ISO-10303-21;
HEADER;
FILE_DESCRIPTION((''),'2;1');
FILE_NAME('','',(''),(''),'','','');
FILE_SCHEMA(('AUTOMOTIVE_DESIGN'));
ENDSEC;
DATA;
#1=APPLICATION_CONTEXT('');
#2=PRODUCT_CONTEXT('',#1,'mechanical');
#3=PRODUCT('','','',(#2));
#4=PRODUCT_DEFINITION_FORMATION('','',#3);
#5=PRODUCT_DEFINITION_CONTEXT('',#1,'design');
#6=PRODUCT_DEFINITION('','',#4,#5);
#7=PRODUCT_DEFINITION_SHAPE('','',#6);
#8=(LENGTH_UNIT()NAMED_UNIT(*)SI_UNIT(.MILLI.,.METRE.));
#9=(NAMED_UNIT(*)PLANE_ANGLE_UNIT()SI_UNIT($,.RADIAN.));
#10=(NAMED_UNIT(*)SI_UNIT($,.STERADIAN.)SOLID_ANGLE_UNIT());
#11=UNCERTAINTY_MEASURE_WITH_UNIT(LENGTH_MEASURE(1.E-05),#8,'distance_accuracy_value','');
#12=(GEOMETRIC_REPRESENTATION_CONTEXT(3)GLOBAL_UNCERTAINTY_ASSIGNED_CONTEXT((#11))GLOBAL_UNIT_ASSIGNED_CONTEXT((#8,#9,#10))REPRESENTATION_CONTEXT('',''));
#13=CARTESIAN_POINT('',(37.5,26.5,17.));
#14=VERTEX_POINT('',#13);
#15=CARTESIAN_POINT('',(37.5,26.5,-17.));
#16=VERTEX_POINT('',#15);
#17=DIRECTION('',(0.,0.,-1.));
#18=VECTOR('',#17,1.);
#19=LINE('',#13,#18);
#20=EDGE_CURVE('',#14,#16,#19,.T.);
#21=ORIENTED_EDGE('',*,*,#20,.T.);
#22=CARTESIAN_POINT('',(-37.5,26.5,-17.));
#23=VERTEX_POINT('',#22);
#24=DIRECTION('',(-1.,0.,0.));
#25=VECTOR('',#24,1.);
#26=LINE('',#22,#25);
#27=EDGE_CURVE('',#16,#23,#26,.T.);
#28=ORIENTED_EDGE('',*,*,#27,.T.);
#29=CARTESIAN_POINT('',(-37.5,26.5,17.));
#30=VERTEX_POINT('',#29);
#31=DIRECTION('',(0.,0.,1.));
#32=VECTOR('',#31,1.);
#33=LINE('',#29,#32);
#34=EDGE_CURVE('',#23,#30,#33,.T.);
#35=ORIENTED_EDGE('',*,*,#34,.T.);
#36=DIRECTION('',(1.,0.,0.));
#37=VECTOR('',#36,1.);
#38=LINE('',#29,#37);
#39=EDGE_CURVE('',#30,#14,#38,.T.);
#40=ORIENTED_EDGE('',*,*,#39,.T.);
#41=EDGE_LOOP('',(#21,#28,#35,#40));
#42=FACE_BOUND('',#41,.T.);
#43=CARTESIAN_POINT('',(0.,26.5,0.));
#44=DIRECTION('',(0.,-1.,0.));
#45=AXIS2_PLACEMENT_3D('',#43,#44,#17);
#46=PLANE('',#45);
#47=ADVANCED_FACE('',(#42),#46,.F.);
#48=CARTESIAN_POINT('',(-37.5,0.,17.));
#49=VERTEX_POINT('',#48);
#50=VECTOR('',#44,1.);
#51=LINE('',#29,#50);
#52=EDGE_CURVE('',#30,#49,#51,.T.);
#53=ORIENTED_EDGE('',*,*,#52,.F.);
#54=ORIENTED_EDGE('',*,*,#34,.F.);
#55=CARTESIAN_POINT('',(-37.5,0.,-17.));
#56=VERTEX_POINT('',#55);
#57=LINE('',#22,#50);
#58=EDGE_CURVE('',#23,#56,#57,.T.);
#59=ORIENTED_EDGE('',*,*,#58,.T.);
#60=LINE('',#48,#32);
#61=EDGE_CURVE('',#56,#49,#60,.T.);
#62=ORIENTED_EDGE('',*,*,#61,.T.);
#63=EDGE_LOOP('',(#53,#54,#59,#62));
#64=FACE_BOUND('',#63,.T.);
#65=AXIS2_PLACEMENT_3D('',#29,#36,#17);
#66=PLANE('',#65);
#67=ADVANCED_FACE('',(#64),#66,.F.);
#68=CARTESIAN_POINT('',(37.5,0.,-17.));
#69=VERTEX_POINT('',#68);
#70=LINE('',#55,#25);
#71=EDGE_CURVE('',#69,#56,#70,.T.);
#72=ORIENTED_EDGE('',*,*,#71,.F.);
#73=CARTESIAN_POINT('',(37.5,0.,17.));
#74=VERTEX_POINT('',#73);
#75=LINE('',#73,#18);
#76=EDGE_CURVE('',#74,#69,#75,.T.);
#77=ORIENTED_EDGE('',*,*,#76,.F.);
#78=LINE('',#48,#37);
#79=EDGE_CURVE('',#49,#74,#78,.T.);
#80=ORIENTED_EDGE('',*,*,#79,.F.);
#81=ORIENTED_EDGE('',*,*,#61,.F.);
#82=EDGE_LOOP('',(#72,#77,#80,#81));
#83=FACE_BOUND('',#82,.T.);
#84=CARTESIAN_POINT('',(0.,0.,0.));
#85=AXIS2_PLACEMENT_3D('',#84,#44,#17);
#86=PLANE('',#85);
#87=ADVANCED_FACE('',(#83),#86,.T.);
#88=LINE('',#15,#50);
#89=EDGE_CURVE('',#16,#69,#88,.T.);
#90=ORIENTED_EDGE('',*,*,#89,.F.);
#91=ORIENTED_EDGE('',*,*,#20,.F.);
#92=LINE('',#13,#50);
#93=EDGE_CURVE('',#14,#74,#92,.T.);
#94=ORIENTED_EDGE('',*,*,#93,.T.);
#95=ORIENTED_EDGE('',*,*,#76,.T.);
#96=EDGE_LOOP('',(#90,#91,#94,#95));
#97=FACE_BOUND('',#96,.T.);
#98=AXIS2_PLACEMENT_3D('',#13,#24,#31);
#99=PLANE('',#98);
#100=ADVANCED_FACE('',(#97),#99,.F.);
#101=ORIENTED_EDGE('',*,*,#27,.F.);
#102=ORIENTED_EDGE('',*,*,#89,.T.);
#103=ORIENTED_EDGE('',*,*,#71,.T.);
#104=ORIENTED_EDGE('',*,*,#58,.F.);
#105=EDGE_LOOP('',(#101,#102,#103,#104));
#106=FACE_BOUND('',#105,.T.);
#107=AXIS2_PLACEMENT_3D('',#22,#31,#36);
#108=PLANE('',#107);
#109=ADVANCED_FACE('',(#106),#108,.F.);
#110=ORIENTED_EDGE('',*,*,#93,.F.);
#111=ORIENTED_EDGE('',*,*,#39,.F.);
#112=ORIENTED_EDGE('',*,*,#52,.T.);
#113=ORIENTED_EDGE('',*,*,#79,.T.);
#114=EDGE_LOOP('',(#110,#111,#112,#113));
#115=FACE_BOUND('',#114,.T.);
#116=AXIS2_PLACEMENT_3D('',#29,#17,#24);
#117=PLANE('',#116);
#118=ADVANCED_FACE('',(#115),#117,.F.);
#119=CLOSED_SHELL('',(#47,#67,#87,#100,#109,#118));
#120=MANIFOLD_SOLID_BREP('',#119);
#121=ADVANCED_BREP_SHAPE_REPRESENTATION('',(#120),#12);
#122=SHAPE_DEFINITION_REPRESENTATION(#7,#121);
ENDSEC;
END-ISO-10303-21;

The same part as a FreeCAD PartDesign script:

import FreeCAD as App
import Part
import Sketcher


def add_polygon(sketch, points):
    """Adds a closed chain of lines whose ends are joined by coincident constraints."""
    first, n = sketch.GeometryCount, len(points)
    for a, b in zip(points, points[1:] + points[:1]):
        sketch.addGeometry(Part.LineSegment(App.Vector(*a, 0), App.Vector(*b, 0)), False)
    for i in range(n):
        sketch.addConstraint(Sketcher.Constraint("Coincident", first + i, 2, first + (i + 1) % n, 1))

doc = App.newDocument("Part")
params = doc.addObject("Spreadsheet::Sheet", "Params")
for row, (alias, value) in enumerate([
    ("sketch1_width", "75 mm"),
    ("sketch1_height", "34 mm"),
    ("pad1_length", "26.5 mm"),
], start=1):
    params.set(f"A{row}", alias)
    params.set(f"B{row}", "=" + value)
    params.setAlias(f"B{row}", alias)

body = doc.addObject("PartDesign::Body", "Body")

sketch1 = body.newObject("Sketcher::SketchObject", "Sketch")
sketch1.AttachmentSupport = (doc.getObject("XZ_Plane"), [""])
sketch1.MapMode = "FlatFace"
add_polygon(sketch1, [(-37.5, -17), (-37.5, 17), (37.5, 17), (37.5, -17)])
sketch1.addConstraint(Sketcher.Constraint("Vertical", 0))
sketch1.addConstraint(Sketcher.Constraint("Horizontal", 1))
sketch1.addConstraint(Sketcher.Constraint("Vertical", 2))
sketch1.addConstraint(Sketcher.Constraint("Horizontal", 3))
sketch1.addConstraint(Sketcher.Constraint("Symmetric", 0, 2, 2, 2, -1, 1))
sketch1.addConstraint(Sketcher.Constraint("DistanceX", 1, 1, 1, 2, 75.0))
sketch1.addConstraint(Sketcher.Constraint("DistanceY", 0, 1, 0, 2, 34.0))
sketch1.setExpression("Constraints[9]", "Params.sketch1_width")
sketch1.setExpression("Constraints[10]", "Params.sketch1_height")
pad1 = body.newObject("PartDesign::Pad", "Pad")
pad1.Profile = sketch1
pad1.setExpression("Length", "Params.pad1_length")
pad1.Reversed = True

doc.recompute()
